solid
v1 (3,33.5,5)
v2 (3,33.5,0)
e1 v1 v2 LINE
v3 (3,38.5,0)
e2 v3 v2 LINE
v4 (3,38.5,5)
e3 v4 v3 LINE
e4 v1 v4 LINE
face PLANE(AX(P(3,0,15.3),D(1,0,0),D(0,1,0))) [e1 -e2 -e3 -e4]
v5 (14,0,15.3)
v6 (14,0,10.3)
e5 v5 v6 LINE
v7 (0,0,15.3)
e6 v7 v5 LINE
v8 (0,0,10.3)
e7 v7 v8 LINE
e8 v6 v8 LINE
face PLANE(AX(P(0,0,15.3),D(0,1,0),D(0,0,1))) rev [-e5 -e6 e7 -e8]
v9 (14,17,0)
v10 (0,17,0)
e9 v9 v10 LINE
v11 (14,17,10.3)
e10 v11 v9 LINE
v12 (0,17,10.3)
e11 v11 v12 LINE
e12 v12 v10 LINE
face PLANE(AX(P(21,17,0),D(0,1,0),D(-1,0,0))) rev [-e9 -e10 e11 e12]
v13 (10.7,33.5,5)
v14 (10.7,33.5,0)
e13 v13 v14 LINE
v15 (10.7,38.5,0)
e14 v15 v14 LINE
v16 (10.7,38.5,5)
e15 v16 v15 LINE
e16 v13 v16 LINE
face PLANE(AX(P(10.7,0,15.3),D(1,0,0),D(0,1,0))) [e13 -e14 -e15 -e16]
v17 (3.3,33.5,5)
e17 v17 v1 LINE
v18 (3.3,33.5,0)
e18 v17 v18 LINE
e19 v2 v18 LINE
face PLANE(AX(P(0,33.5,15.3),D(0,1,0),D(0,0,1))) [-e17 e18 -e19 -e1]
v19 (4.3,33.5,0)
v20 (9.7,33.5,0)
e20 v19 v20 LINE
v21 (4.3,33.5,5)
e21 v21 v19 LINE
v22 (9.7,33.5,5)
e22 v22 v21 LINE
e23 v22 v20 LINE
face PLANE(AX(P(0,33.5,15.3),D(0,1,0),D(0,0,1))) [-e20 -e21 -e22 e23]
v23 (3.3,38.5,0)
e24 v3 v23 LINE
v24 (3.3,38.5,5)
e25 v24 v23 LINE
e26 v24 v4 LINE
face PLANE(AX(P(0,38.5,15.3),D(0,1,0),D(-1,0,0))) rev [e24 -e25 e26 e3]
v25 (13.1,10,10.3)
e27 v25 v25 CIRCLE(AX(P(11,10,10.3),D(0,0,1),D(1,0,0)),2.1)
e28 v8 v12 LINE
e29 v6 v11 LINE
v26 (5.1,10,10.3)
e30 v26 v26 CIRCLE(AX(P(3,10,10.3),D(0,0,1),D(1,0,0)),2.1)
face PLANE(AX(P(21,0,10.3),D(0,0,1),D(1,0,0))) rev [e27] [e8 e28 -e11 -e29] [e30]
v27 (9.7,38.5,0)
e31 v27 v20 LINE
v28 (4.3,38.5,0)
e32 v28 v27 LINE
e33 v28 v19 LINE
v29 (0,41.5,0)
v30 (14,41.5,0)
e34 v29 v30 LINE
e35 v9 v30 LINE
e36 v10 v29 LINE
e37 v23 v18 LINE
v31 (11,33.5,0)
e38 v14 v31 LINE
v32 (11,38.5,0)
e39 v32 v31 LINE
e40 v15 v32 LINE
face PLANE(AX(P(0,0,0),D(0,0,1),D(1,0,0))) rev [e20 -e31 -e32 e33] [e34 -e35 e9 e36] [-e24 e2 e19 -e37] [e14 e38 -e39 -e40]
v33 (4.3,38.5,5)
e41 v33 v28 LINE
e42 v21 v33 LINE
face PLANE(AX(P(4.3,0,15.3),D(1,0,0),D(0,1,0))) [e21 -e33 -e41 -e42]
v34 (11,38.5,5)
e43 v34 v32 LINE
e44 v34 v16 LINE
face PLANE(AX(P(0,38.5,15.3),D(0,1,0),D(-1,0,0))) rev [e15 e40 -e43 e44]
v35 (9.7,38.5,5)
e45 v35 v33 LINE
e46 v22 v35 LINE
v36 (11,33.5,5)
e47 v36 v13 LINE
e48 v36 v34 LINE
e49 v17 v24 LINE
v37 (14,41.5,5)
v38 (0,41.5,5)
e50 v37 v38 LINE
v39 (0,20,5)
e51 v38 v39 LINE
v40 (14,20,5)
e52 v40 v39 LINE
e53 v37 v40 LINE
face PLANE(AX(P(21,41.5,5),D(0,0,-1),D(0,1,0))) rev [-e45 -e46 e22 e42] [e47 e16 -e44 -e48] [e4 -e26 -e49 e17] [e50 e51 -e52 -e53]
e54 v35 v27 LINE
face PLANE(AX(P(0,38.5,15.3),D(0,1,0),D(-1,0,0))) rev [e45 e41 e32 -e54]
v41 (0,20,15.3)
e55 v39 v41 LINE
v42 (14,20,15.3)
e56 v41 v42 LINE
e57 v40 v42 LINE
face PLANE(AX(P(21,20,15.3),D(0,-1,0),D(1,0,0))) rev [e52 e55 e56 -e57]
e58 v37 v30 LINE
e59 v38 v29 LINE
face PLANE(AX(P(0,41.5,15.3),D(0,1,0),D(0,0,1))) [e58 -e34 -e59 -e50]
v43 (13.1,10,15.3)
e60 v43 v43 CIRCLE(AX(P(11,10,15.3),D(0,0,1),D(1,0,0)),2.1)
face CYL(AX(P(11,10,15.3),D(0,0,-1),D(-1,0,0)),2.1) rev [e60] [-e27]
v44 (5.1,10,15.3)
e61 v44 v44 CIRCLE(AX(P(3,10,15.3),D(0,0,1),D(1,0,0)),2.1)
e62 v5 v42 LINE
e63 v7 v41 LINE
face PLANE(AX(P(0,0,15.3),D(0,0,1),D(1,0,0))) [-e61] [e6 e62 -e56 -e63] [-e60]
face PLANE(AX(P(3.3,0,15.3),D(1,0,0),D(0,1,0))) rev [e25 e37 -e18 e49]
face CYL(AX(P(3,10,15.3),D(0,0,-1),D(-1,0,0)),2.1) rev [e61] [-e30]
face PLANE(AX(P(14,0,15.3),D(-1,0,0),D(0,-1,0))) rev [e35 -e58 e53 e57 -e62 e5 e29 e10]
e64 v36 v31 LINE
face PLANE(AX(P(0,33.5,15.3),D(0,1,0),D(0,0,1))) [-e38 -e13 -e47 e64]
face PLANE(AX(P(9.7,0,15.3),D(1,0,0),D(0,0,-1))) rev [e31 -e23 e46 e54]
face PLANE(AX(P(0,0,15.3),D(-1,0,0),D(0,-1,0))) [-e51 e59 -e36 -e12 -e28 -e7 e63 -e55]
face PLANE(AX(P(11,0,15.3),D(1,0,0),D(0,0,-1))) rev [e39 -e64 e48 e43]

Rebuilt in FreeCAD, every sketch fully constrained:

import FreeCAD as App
import Part
import Sketcher
from FreeCAD import Vector

doc = App.newDocument("Part")
params = doc.addObject("Spreadsheet::Sheet", "Params")
for row, (alias, value) in enumerate([
    ("sketch1_diameter", "4.2 mm"),
    ("sketch1_width", "14 mm"),
    ("sketch1_height", "5 mm"),
    ("sketch1_width2", "0.3 mm"),
    ("sketch1_width3", "5.4 mm"),
    ("pad1_length", "15.3 mm"),
    ("sketch2_width", "17 mm"),
    ("sketch2_width2", "21.5 mm"),
    ("sketch2_height", "10.3 mm"),
    ("pocket1_length", "21 mm"),
], start=1):
    params.set(f"A{row}", alias)
    params.set(f"B{row}", "=" + value)
    params.setAlias(f"B{row}", alias)

body = doc.addObject("PartDesign::Body", "Body")

sketch1 = doc.addObject("Sketcher::SketchObject", "Sketch")
body.addObject(sketch1)
sketch1.AttachmentSupport = (doc.XY_Plane, [""])
sketch1.MapMode = "FlatFace"
sketch1.addGeometry([
    Part.LineSegment(Vector(0, 41.5, 0), Vector(0, 0, 0)),
    Part.LineSegment(Vector(0, 0, 0), Vector(14, 0, 0)),
    Part.LineSegment(Vector(14, 0, 0), Vector(14, 41.5, 0)),
    Part.LineSegment(Vector(14, 41.5, 0), Vector(0, 41.5, 0)),
    Part.Circle(Vector(3, 10, 0), Vector(0, 0, 1), 2.1),
    Part.Circle(Vector(11, 10, 0), Vector(0, 0, 1), 2.1),
    Part.LineSegment(Vector(3, 38.5, 0), Vector(3.3, 38.5, 0)),
    Part.LineSegment(Vector(3.3, 38.5, 0), Vector(3.3, 33.5, 0)),
    Part.LineSegment(Vector(3.3, 33.5, 0), Vector(3, 33.5, 0)),
    Part.LineSegment(Vector(3, 33.5, 0), Vector(3, 38.5, 0)),
    Part.LineSegment(Vector(4.3, 38.5, 0), Vector(9.7, 38.5, 0)),
    Part.LineSegment(Vector(9.7, 38.5, 0), Vector(9.7, 33.5, 0)),
    Part.LineSegment(Vector(9.7, 33.5, 0), Vector(4.3, 33.5, 0)),
    Part.LineSegment(Vector(4.3, 33.5, 0), Vector(4.3, 38.5, 0)),
    Part.LineSegment(Vector(10.7, 38.5, 0), Vector(11, 38.5, 0)),
    Part.LineSegment(Vector(11, 38.5, 0), Vector(11, 33.5, 0)),
    Part.LineSegment(Vector(11, 33.5, 0), Vector(10.7, 33.5, 0)),
    Part.LineSegment(Vector(10.7, 33.5, 0), Vector(10.7, 38.5, 0)),
], False)
sketch1.addConstraint([
    Sketcher.Constraint("Coincident", 0, 2, 1, 1),
    Sketcher.Constraint("Coincident", 1, 2, 2, 1),
    Sketcher.Constraint("Coincident", 2, 2, 3, 1),
    Sketcher.Constraint("Coincident", 3, 2, 0, 1),
    Sketcher.Constraint("Coincident", 6, 2, 7, 1),
    Sketcher.Constraint("Coincident", 7, 2, 8, 1),
    Sketcher.Constraint("Coincident", 8, 2, 9, 1),
    Sketcher.Constraint("Coincident", 9, 2, 6, 1),
    Sketcher.Constraint("Coincident", 10, 2, 11, 1),
    Sketcher.Constraint("Coincident", 11, 2, 12, 1),
    Sketcher.Constraint("Coincident", 12, 2, 13, 1),
    Sketcher.Constraint("Coincident", 13, 2, 10, 1),
    Sketcher.Constraint("Coincident", 14, 2, 15, 1),
    Sketcher.Constraint("Coincident", 15, 2, 16, 1),
    Sketcher.Constraint("Coincident", 16, 2, 17, 1),
    Sketcher.Constraint("Coincident", 17, 2, 14, 1),
    Sketcher.Constraint("Vertical", 0),
    Sketcher.Constraint("Horizontal", 1),
    Sketcher.Constraint("Vertical", 2),
    Sketcher.Constraint("Horizontal", 3),
    Sketcher.Constraint("Horizontal", 6),
    Sketcher.Constraint("Vertical", 7),
    Sketcher.Constraint("Horizontal", 8),
    Sketcher.Constraint("Vertical", 9),
    Sketcher.Constraint("Horizontal", 10),
    Sketcher.Constraint("Vertical", 11),
    Sketcher.Constraint("Horizontal", 12),
    Sketcher.Constraint("Vertical", 13),
    Sketcher.Constraint("Horizontal", 14),
    Sketcher.Constraint("Vertical", 15),
    Sketcher.Constraint("Horizontal", 16),
    Sketcher.Constraint("Vertical", 17),
    Sketcher.Constraint("Coincident", 0, 2, -1, 1),
    Sketcher.Constraint("Equal", 4, 5),
    Sketcher.Constraint("Horizontal", 4, 3, 5, 3),
    Sketcher.Constraint("Horizontal", 9, 2, 10, 2),
    Sketcher.Constraint("Horizontal", 8, 2, 11, 2),
    Sketcher.Constraint("Horizontal", 13, 2, 14, 2),
    Sketcher.Constraint("Horizontal", 12, 2, 15, 2),
    Sketcher.Constraint("Vertical", 4, 3, 8, 2),
    Sketcher.Constraint("Vertical", 5, 3, 14, 2),
    Sketcher.Constraint("Equal", 8, 14),
    Sketcher.Constraint("Diameter", 4, 4.2),
    Sketcher.Constraint("DistanceX", 1, 1, 1, 2, 14.0),
    Sketcher.Constraint("DistanceY", 7, 2, 7, 1, 5.0),
    Sketcher.Constraint("DistanceX", 6, 1, 6, 2, 0.3),
    Sketcher.Constraint("DistanceX", 10, 1, 10, 2, 5.4),
    Sketcher.Constraint("DistanceY", 0, 2, 0, 1, 41.5),
    Sketcher.Constraint("DistanceX", -1, 1, 4, 3, 3.0),
    Sketcher.Constraint("DistanceY", -1, 1, 4, 3, 10.0),
    Sketcher.Constraint("DistanceX", -1, 1, 5, 3, 11.0),
    Sketcher.Constraint("DistanceY", 6, 2, 3, 2, 3.0),
    Sketcher.Constraint("DistanceX", 7, 2, 12, 2, 1.0),
])
sketch1.setExpression("Constraints[42]", "Params.sketch1_diameter")
sketch1.setExpression("Constraints[43]", "Params.sketch1_width")
sketch1.setExpression("Constraints[44]", "Params.sketch1_height")
sketch1.setExpression("Constraints[45]", "Params.sketch1_width2")
sketch1.setExpression("Constraints[46]", "Params.sketch1_width3")
pad1 = doc.addObject("PartDesign::Pad", "Pad")
body.addObject(pad1)
pad1.Profile = sketch1
pad1.setExpression("Length", "Params.pad1_length")

sketch2 = doc.addObject("Sketcher::SketchObject", "Sketch001")
body.addObject(sketch2)
sketch2.AttachmentSupport = (doc.YZ_Plane, [""])
sketch2.MapMode = "FlatFace"
sketch2.addGeometry([
    Part.LineSegment(Vector(17, 0, 0), Vector(0, 0, 0)),
    Part.LineSegment(Vector(0, 0, 0), Vector(0, 10.3, 0)),
    Part.LineSegment(Vector(0, 10.3, 0), Vector(17, 10.3, 0)),
    Part.LineSegment(Vector(17, 10.3, 0), Vector(17, 0, 0)),
    Part.LineSegment(Vector(41.5, 5, 0), Vector(20, 5, 0)),
    Part.LineSegment(Vector(20, 5, 0), Vector(20, 15.3, 0)),
    Part.LineSegment(Vector(20, 15.3, 0), Vector(41.5, 15.3, 0)),
    Part.LineSegment(Vector(41.5, 15.3, 0), Vector(41.5, 5, 0)),
], False)
sketch2.addConstraint([
    Sketcher.Constraint("Coincident", 0, 2, 1, 1),
    Sketcher.Constraint("Coincident", 1, 2, 2, 1),
    Sketcher.Constraint("Coincident", 2, 2, 3, 1),
    Sketcher.Constraint("Coincident", 3, 2, 0, 1),
    Sketcher.Constraint("Coincident", 4, 2, 5, 1),
    Sketcher.Constraint("Coincident", 5, 2, 6, 1),
    Sketcher.Constraint("Coincident", 6, 2, 7, 1),
    Sketcher.Constraint("Coincident", 7, 2, 4, 1),
    Sketcher.Constraint("Horizontal", 0),
    Sketcher.Constraint("Vertical", 1),
    Sketcher.Constraint("Horizontal", 2),
    Sketcher.Constraint("Vertical", 3),
    Sketcher.Constraint("Horizontal", 4),
    Sketcher.Constraint("Vertical", 5),
    Sketcher.Constraint("Horizontal", 6),
    Sketcher.Constraint("Vertical", 7),
    Sketcher.Constraint("Coincident", 0, 2, -1, 1),
    Sketcher.Constraint("Equal", 3, 5),
    Sketcher.Constraint("DistanceX", 0, 2, 0, 1, 17.0),
    Sketcher.Constraint("DistanceX", 4, 2, 4, 1, 21.5),
    Sketcher.Constraint("DistanceY", 1, 1, 1, 2, 10.3),
    Sketcher.Constraint("DistanceX", -1, 1, 4, 2, 20.0),
    Sketcher.Constraint("DistanceY", -1, 1, 4, 2, 5.0),
])
sketch2.setExpression("Constraints[18]", "Params.sketch2_width")
sketch2.setExpression("Constraints[19]", "Params.sketch2_width2")
sketch2.setExpression("Constraints[20]", "Params.sketch2_height")
pocket1 = doc.addObject("PartDesign::Pocket", "Pocket")
body.addObject(pocket1)
pocket1.Profile = sketch2
pocket1.setExpression("Length", "Params.pocket1_length")
pocket1.Reversed = True

doc.recompute()
